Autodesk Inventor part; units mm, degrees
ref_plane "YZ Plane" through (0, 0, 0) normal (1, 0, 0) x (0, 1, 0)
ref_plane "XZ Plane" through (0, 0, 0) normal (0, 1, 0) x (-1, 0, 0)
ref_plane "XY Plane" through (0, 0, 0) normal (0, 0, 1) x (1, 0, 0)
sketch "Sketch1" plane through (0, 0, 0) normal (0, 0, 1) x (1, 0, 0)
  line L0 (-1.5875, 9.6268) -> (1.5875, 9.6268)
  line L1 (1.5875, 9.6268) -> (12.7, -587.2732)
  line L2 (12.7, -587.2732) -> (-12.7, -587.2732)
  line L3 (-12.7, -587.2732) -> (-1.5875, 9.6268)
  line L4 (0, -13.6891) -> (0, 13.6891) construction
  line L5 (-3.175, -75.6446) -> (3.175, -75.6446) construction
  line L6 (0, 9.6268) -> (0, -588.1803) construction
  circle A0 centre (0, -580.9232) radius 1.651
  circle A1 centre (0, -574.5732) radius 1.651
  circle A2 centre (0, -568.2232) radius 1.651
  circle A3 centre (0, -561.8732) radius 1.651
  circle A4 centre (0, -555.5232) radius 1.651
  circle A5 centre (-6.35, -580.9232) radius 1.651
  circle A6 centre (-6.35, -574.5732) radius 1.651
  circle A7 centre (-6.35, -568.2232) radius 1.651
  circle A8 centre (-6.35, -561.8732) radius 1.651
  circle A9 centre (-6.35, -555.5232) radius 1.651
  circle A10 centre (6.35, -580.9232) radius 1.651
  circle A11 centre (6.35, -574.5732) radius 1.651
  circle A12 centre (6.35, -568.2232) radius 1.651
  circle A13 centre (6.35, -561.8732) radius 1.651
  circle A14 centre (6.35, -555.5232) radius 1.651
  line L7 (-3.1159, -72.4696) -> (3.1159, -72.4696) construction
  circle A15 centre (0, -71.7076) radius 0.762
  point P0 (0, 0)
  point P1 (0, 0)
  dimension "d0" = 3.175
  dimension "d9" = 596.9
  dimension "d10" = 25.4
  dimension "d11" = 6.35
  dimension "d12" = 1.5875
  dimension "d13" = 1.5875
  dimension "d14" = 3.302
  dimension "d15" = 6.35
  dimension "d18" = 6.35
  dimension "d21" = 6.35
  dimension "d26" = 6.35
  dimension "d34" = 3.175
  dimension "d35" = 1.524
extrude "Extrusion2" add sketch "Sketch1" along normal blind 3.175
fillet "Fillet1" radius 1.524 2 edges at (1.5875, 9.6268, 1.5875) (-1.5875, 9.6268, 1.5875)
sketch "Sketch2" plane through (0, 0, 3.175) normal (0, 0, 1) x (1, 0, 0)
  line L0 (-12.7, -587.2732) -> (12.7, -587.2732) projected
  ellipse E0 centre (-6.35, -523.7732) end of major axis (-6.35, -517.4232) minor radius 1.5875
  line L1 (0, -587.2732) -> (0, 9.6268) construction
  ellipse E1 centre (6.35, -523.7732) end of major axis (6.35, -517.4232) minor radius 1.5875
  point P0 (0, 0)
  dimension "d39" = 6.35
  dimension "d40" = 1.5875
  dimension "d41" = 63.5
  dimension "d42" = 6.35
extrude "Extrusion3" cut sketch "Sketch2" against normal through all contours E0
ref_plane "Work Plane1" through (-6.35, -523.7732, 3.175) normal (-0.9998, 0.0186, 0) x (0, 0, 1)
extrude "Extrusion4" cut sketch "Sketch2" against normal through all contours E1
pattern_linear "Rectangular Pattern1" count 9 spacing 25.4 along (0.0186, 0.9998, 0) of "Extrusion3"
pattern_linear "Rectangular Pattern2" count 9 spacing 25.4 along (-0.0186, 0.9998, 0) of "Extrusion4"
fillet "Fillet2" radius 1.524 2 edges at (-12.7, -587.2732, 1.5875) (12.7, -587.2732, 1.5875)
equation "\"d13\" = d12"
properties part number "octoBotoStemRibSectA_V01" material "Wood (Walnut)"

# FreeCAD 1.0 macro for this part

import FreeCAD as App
import Part
import Sketcher

V = App.Vector
Q = App.Units.Quantity


def edges_at(feature, points):
    """Names of the edges that pass closest to the given points."""
    edges = feature.Shape.Edges
    near = lambda p: min(range(len(edges)), key=lambda i: edges[i].distToShape(Part.Vertex(*p))[0])
    return sorted({f"Edge{near(p) + 1}" for p in points})


def add_polygon(sketch, points):
    """Adds a closed chain of lines whose ends are joined by coincident constraints."""
    first, n = sketch.GeometryCount, len(points)
    for a, b in zip(points, points[1:] + points[:1]):
        sketch.addGeometry(Part.LineSegment(App.Vector(*a, 0), App.Vector(*b, 0)), False)
    for i in range(n):
        sketch.addConstraint(Sketcher.Constraint("Coincident", first + i, 2, first + (i + 1) % n, 1))

doc = App.newDocument("Part")
params = doc.addObject("Spreadsheet::Sheet", "Params")
for row, (alias, value) in enumerate([
    ("sketch1_diameter", "0.13 in"),
    ("sketch1_diameter2", "0.06 in"),
    ("sketch1_width", "1 in"),
    ("sketch1_width2", "0.125 in"),
    ("pad1_length", "0.125 in"),
    ("fillet_radius", "0.06 in"),
    ("linearpattern_pitch", "1 in"),
    ("linearpattern2_pitch", "1 in"),
    ("fillet2_radius", "0.06 in"),
], start=1):
    params.set(f"A{row}", alias)
    params.set(f"B{row}", "=" + value)
    params.setAlias(f"B{row}", alias)

body = doc.addObject("PartDesign::Body", "Body")

# Sketch on XY plane
sketch1 = body.newObject("Sketcher::SketchObject", "Sketch")
sketch1.AttachmentSupport = (doc.getObject("XY_Plane"), [""])
sketch1.MapMode = "FlatFace"
add_polygon(sketch1, [(1.6, 9.6), (-1.6, 9.6), (-12.7, -587.3), (12.7, -587.3)])  # lines 0-3
sketch1.addGeometry(Part.Circle(V(-6.3, -580.9, 0), V(0, 0, 1), 1.7), False)  # 4
sketch1.addGeometry(Part.Circle(V(-6.3, -574.6, 0), V(0, 0, 1), 1.7), False)  # 5
sketch1.addGeometry(Part.Circle(V(-6.3, -568.2, 0), V(0, 0, 1), 1.7), False)  # 6
sketch1.addGeometry(Part.Circle(V(-6.3, -561.9, 0), V(0, 0, 1), 1.7), False)  # 7
sketch1.addGeometry(Part.Circle(V(-6.3, -555.5, 0), V(0, 0, 1), 1.7), False)  # 8
sketch1.addGeometry(Part.Circle(V(0, -580.9, 0), V(0, 0, 1), 1.7), False)  # 9
sketch1.addGeometry(Part.Circle(V(0, -574.6, 0), V(0, 0, 1), 1.7), False)  # 10
sketch1.addGeometry(Part.Circle(V(0, -568.2, 0), V(0, 0, 1), 1.7), False)  # 11
sketch1.addGeometry(Part.Circle(V(0, -561.9, 0), V(0, 0, 1), 1.7), False)  # 12
sketch1.addGeometry(Part.Circle(V(0, -555.5, 0), V(0, 0, 1), 1.7), False)  # 13
sketch1.addGeometry(Part.Circle(V(6.3, -580.9, 0), V(0, 0, 1), 1.7), False)  # 14
sketch1.addGeometry(Part.Circle(V(6.3, -574.6, 0), V(0, 0, 1), 1.7), False)  # 15
sketch1.addGeometry(Part.Circle(V(6.3, -568.2, 0), V(0, 0, 1), 1.7), False)  # 16
sketch1.addGeometry(Part.Circle(V(6.3, -561.9, 0), V(0, 0, 1), 1.7), False)  # 17
sketch1.addGeometry(Part.Circle(V(6.3, -555.5, 0), V(0, 0, 1), 1.7), False)  # 18
sketch1.addGeometry(Part.Circle(V(0, -71.7, 0), V(0, 0, 1), 0.8), False)  # 19
sketch1.addConstraint(Sketcher.Constraint("Horizontal", 0))
sketch1.addConstraint(Sketcher.Constraint("Horizontal", 2))
sketch1.addConstraint(Sketcher.Constraint("Equal", 4, 5))
sketch1.addConstraint(Sketcher.Constraint("Equal", 5, 6))
sketch1.addConstraint(Sketcher.Constraint("Equal", 6, 7))
sketch1.addConstraint(Sketcher.Constraint("Equal", 7, 8))
sketch1.addConstraint(Sketcher.Constraint("Equal", 8, 9))
sketch1.addConstraint(Sketcher.Constraint("Equal", 9, 10))
sketch1.addConstraint(Sketcher.Constraint("Equal", 10, 11))
sketch1.addConstraint(Sketcher.Constraint("Equal", 11, 12))
sketch1.addConstraint(Sketcher.Constraint("Equal", 12, 13))
sketch1.addConstraint(Sketcher.Constraint("Equal", 13, 14))
sketch1.addConstraint(Sketcher.Constraint("Equal", 14, 15))
sketch1.addConstraint(Sketcher.Constraint("Equal", 15, 16))
sketch1.addConstraint(Sketcher.Constraint("Equal", 16, 17))
sketch1.addConstraint(Sketcher.Constraint("Equal", 17, 18))
sketch1.addConstraint(Sketcher.Constraint("Symmetric", 4, 3, 14, 3, -2))
sketch1.addConstraint(Sketcher.Constraint("Symmetric", 5, 3, 15, 3, -2))
sketch1.addConstraint(Sketcher.Constraint("Symmetric", 6, 3, 16, 3, -2))
sketch1.addConstraint(Sketcher.Constraint("Symmetric", 7, 3, 17, 3, -2))
sketch1.addConstraint(Sketcher.Constraint("Symmetric", 8, 3, 18, 3, -2))
sketch1.addConstraint(Sketcher.Constraint("PointOnObject", 9, 3, -2))
sketch1.addConstraint(Sketcher.Constraint("PointOnObject", 10, 3, -2))
sketch1.addConstraint(Sketcher.Constraint("PointOnObject", 11, 3, -2))
sketch1.addConstraint(Sketcher.Constraint("PointOnObject", 12, 3, -2))
sketch1.addConstraint(Sketcher.Constraint("PointOnObject", 13, 3, -2))
sketch1.addConstraint(Sketcher.Constraint("PointOnObject", 19, 3, -2))
sketch1.addConstraint(Sketcher.Constraint("Horizontal", 4, 3, 9, 3))
sketch1.addConstraint(Sketcher.Constraint("Horizontal", 5, 3, 10, 3))
sketch1.addConstraint(Sketcher.Constraint("Horizontal", 6, 3, 11, 3))
sketch1.addConstraint(Sketcher.Constraint("Horizontal", 7, 3, 12, 3))
sketch1.addConstraint(Sketcher.Constraint("Horizontal", 8, 3, 13, 3))
sketch1.addConstraint(Sketcher.Constraint("Vertical", 4, 3, 5, 3))
sketch1.addConstraint(Sketcher.Constraint("Vertical", 5, 3, 6, 3))
sketch1.addConstraint(Sketcher.Constraint("Vertical", 6, 3, 7, 3))
sketch1.addConstraint(Sketcher.Constraint("Vertical", 7, 3, 8, 3))
sketch1.addConstraint(Sketcher.Constraint("Equal", 1, 3))
sketch1.addConstraint(Sketcher.Constraint("Diameter", 4, Q("0.13 in")))
sketch1.addConstraint(Sketcher.Constraint("Diameter", 19, Q("0.06 in")))
sketch1.addConstraint(Sketcher.Constraint("DistanceX", 2, 1, 2, 2, Q("1 in")))
sketch1.addConstraint(Sketcher.Constraint("DistanceY", 4, 3, 8, 3, Q("1 in")))
sketch1.addConstraint(Sketcher.Constraint("DistanceX", 0, 2, 0, 1, Q("0.125 in")))
sketch1.addConstraint(Sketcher.Constraint("DistanceX", 4, 3, -1, 1, Q("0.25 in")))
sketch1.addConstraint(Sketcher.Constraint("DistanceY", 4, 3, 5, 3, Q("0.25 in")))
sketch1.addConstraint(Sketcher.Constraint("DistanceY", 5, 3, 6, 3, Q("0.25 in")))
sketch1.addConstraint(Sketcher.Constraint("DistanceY", 6, 3, 7, 3, Q("0.25 in")))
sketch1.addConstraint(Sketcher.Constraint("DistanceX", 1, 2, 4, 3, Q("0.25 in")))
sketch1.addConstraint(Sketcher.Constraint("DistanceY", 1, 2, 4, 3, Q("0.25 in")))
sketch1.addConstraint(Sketcher.Constraint("DistanceY", 12, 3, 0, 2, Q("22.5 in")))
sketch1.addConstraint(Sketcher.Constraint("DistanceY", 4, 3, -1, 1, Q("22.871 in")))
sketch1.addConstraint(Sketcher.Constraint("DistanceY", 19, 3, -1, 1, 71.7076))
sketch1.setExpression("Constraints[41]", "Params.sketch1_diameter")
sketch1.setExpression("Constraints[42]", "Params.sketch1_diameter2")
sketch1.setExpression("Constraints[43]", "Params.sketch1_width")
sketch1.setExpression("Constraints[45]", "Params.sketch1_width2")
pad1 = body.newObject("PartDesign::Pad", "Pad")
pad1.Profile = sketch1
pad1.setExpression("Length", "Params.pad1_length")
doc.recompute()

fillet = body.newObject("PartDesign::Fillet", "Fillet")
fillet.Base = (pad1, edges_at(pad1, [(1.587, 9.627, 1.587), (-1.587, 9.627, 1.587)]))
fillet.setExpression("Radius", "Params.fillet_radius")

# Sketch on XY plane
sketch2 = body.newObject("Sketcher::SketchObject", "Sketch001")
sketch2.AttachmentSupport = (doc.getObject("XY_Plane"), [""])
sketch2.MapMode = "FlatFace"
sketch2.AttachmentOffset = App.Placement(V(0, 0, 0.125 * 25.4), App.Rotation())
sketch2.addGeometry(Part.Ellipse(V(-6.35, -517.4232, 0), V(-7.9375, -523.7732, 0), V(-6.35, -523.7732, 0)), False)
sketch2.addConstraint(Sketcher.Constraint("Block", 0))
pocket1 = body.newObject("PartDesign::Pocket", "Pocket")
pocket1.Profile = sketch2
pocket1.Type = "ThroughAll"

# Sketch on XY plane
sketch3 = body.newObject("Sketcher::SketchObject", "Sketch002")
sketch3.AttachmentSupport = (doc.getObject("XY_Plane"), [""])
sketch3.MapMode = "FlatFace"
sketch3.AttachmentOffset = App.Placement(V(0, 0, 0.125 * 25.4), App.Rotation())
sketch3.addGeometry(Part.Ellipse(V(6.35, -517.4232, 0), V(4.7625, -523.7732, 0), V(6.35, -523.7732, 0)), False)
sketch3.addConstraint(Sketcher.Constraint("Block", 0))
pocket2 = body.newObject("PartDesign::Pocket", "Pocket001")
pocket2.Profile = sketch3
pocket2.Type = "ThroughAll"
doc.recompute()

datumline = body.newObject("PartDesign::Line", "DatumLine")
datumline.Placement = App.Placement(V(0, 0, 0), App.Rotation(V(0, 0, 1), V(0.018600502, 0.999826996, 0)))
linearpattern = body.newObject("PartDesign::LinearPattern", "LinearPattern")
linearpattern.Originals = [pocket1]
linearpattern.Direction = (datumline, [""])
linearpattern.Mode = "offset"
linearpattern.setExpression("Offset", "Params.linearpattern_pitch")
linearpattern.Occurrences = 9
body.Tip = linearpattern
doc.recompute()

datumline2 = body.newObject("PartDesign::Line", "DatumLine001")
datumline2.Placement = App.Placement(V(0, 0, 0), App.Rotation(V(0, 0, 1), V(-0.018600502, 0.999826996, 0)))
linearpattern2 = body.newObject("PartDesign::LinearPattern", "LinearPattern001")
linearpattern2.Originals = [pocket2]
linearpattern2.Direction = (datumline2, [""])
linearpattern2.Mode = "offset"
linearpattern2.setExpression("Offset", "Params.linearpattern2_pitch")
linearpattern2.Occurrences = 9
body.Tip = linearpattern2
doc.recompute()

fillet2 = body.newObject("PartDesign::Fillet", "Fillet001")
fillet2.Base = (linearpattern2, edges_at(linearpattern2, [(-12.7, -587.273, 1.587), (12.7, -587.273, 1.587)]))
fillet2.setExpression("Radius", "Params.fillet2_radius")

doc.recompute()
